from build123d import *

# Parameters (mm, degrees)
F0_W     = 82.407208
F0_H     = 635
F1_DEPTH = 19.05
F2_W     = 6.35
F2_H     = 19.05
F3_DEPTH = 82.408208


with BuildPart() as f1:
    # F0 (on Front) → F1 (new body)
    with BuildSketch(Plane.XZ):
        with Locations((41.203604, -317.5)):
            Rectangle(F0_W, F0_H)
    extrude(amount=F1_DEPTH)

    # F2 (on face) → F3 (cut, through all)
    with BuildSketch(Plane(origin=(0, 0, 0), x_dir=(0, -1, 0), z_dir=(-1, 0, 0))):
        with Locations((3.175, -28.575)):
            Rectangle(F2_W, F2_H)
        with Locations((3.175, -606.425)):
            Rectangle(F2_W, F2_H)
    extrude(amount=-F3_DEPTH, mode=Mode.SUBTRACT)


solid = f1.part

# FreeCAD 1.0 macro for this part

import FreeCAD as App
import Part
import Sketcher
Q = App.Units.Quantity

doc = App.newDocument("Part")
params = doc.addObject("Spreadsheet::Sheet", "Params")
for row, (alias, value) in enumerate([
    ("sketch1_height", "25 in"),
    ("pad1_length", "0.75 in"),
    ("sketch2_width", "0.25 in"),
    ("sketch2_height", "0.75 in"),
], start=1):
    params.set(f"A{row}", alias)
    params.set(f"B{row}", "=" + value)
    params.setAlias(f"B{row}", alias)

body = doc.addObject("PartDesign::Body", "Body")

# Sketch on XZ plane
sketch1 = body.newObject("Sketcher::SketchObject", "Sketch")
sketch1.AttachmentSupport = (doc.getObject("XZ_Plane"), [""])
sketch1.MapMode = "FlatFace"
sketch1.addGeometry([
    Part.LineSegment(App.Vector(0, 0, 0), App.Vector(0, -635, 0)),
    Part.LineSegment(App.Vector(0, -635, 0), App.Vector(82, -635, 0)),
    Part.LineSegment(App.Vector(82, -635, 0), App.Vector(82, 0, 0)),
    Part.LineSegment(App.Vector(82, 0, 0), App.Vector(0, 0, 0)),
], False)
sketch1.addConstraint([
    Sketcher.Constraint("Coincident", 0, 2, 1, 1),
    Sketcher.Constraint("Coincident", 1, 2, 2, 1),
    Sketcher.Constraint("Coincident", 2, 2, 3, 1),
    Sketcher.Constraint("Coincident", 3, 2, 0, 1),
    Sketcher.Constraint("Vertical", 0),
    Sketcher.Constraint("Horizontal", 1),
    Sketcher.Constraint("Vertical", 2),
    Sketcher.Constraint("Horizontal", 3),
    Sketcher.Constraint("Coincident", 3, 2, -1, 1),
    Sketcher.Constraint("DistanceY", 0, 2, 0, 1, Q("25 in")),
    Sketcher.Constraint("DistanceX", 1, 1, 1, 2, 82.407208),
])
sketch1.setExpression("Constraints[9]", "Params.sketch1_height")
pad1 = body.newObject("PartDesign::Pad", "Pad")
pad1.Profile = sketch1
pad1.setExpression("Length", "Params.pad1_length")

# Sketch on YZ plane
sketch2 = body.newObject("Sketcher::SketchObject", "Sketch001")
sketch2.AttachmentSupport = (doc.getObject("YZ_Plane"), [""])
sketch2.MapMode = "FlatFace"
sketch2.addGeometry([
    Part.LineSegment(App.Vector(0, -19, 0), App.Vector(0, -38, 0)),  # 0
    Part.LineSegment(App.Vector(0, -38, 0), App.Vector(-6, -38, 0)),  # 1
    Part.LineSegment(App.Vector(-6, -38, 0), App.Vector(-6, -19, 0)),  # 2
    Part.LineSegment(App.Vector(-6, -19, 0), App.Vector(0, -19, 0)),  # 3
    Part.LineSegment(App.Vector(0, -597, 0), App.Vector(0, -616, 0)),  # 4
    Part.LineSegment(App.Vector(0, -616, 0), App.Vector(-6, -616, 0)),  # 5
    Part.LineSegment(App.Vector(-6, -616, 0), App.Vector(-6, -597, 0)),  # 6
    Part.LineSegment(App.Vector(-6, -597, 0), App.Vector(0, -597, 0)),  # 7
], False)
sketch2.addConstraint([
    Sketcher.Constraint("Coincident", 0, 2, 1, 1),
    Sketcher.Constraint("Coincident", 1, 2, 2, 1),
    Sketcher.Constraint("Coincident", 2, 2, 3, 1),
    Sketcher.Constraint("Coincident", 3, 2, 0, 1),
    Sketcher.Constraint("Coincident", 4, 2, 5, 1),
    Sketcher.Constraint("Coincident", 5, 2, 6, 1),
    Sketcher.Constraint("Coincident", 6, 2, 7, 1),
    Sketcher.Constraint("Coincident", 7, 2, 4, 1),
    Sketcher.Constraint("Vertical", 0),
    Sketcher.Constraint("Horizontal", 1),
    Sketcher.Constraint("Vertical", 2),
    Sketcher.Constraint("Horizontal", 3),
    Sketcher.Constraint("Vertical", 4),
    Sketcher.Constraint("Horizontal", 5),
    Sketcher.Constraint("Vertical", 6),
    Sketcher.Constraint("Horizontal", 7),
    Sketcher.Constraint("PointOnObject", 0, 2, -2),
    Sketcher.Constraint("PointOnObject", 4, 2, -2),
    Sketcher.Constraint("Vertical", 2, 2, 5, 2),
    Sketcher.Constraint("Equal", 2, 4),
    Sketcher.Constraint("DistanceY", 6, 2, 1, 2, Q("22 in")),
    Sketcher.Constraint("DistanceX", 1, 2, 1, 1, Q("0.25 in")),
    Sketcher.Constraint("DistanceY", 0, 2, 0, 1, Q("0.75 in")),
    Sketcher.Constraint("DistanceY", 0, 2, -1, 1, Q("1.5 in")),
])
sketch2.setExpression("Constraints[21]", "Params.sketch2_width")
sketch2.setExpression("Constraints[22]", "Params.sketch2_height")
pocket1 = body.newObject("PartDesign::Pocket", "Pocket")
pocket1.Profile = sketch2
pocket1.Type = "ThroughAll"
pocket1.Reversed = True

doc.recompute()
